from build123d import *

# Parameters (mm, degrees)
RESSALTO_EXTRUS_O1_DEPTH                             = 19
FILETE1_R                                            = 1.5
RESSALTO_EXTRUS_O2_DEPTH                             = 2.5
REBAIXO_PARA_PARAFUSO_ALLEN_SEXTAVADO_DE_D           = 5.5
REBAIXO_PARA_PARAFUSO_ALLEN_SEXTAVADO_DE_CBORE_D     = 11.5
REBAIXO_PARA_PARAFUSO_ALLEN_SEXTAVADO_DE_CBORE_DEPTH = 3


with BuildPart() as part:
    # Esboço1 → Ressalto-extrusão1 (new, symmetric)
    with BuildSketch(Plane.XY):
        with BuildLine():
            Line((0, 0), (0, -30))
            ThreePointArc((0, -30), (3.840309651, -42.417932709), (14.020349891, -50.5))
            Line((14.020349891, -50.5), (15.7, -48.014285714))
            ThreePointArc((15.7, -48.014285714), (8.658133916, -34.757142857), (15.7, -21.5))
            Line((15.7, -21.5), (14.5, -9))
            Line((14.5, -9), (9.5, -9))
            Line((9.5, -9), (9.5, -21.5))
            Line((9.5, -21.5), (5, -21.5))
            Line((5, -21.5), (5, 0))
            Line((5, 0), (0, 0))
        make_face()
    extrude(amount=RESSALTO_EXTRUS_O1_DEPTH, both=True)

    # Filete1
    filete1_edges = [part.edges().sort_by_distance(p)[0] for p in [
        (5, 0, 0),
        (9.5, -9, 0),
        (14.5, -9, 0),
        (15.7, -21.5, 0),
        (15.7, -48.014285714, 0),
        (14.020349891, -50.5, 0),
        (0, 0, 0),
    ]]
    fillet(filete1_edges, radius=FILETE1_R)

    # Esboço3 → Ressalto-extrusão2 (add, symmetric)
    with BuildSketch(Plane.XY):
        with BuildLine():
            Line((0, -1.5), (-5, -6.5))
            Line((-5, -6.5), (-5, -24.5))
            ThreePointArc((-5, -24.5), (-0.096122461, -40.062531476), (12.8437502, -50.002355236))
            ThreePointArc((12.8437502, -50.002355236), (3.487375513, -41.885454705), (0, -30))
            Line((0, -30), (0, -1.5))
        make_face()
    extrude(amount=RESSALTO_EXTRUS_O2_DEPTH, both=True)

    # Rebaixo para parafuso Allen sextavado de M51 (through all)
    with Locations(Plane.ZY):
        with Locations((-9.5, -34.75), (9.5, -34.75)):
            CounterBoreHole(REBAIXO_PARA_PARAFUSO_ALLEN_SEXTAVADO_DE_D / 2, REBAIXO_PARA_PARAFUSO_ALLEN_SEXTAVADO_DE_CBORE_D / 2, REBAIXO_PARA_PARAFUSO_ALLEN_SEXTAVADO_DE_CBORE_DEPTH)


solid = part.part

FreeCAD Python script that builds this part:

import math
import FreeCAD as App
import Part
import Sketcher
Q = App.Units.Quantity


def edges_at(feature, points):
    """Names of the edges that pass closest to the given points."""
    edges = feature.Shape.Edges
    near = lambda p: min(range(len(edges)), key=lambda i: edges[i].distToShape(Part.Vertex(*p))[0])
    return sorted({f"Edge{near(p) + 1}" for p in points})

doc = App.newDocument("Part")
body = doc.addObject("PartDesign::Body", "Body")

# Sketch on XY plane
sketch1 = doc.addObject("Sketcher::SketchObject", "Sketch")
body.addObject(sketch1)
sketch1.AttachmentSupport = (doc.XY_Plane, [""])
sketch1.MapMode = "FlatFace"
sketch1.addGeometry(Part.LineSegment(App.Vector(0, 0, 0), App.Vector(0, -30, 0)), False)
sketch1.addGeometry(Part.ArcOfCircle(Part.Circle(App.Vector(22, -30, 0), App.Vector(0, 0, 1), 22), math.radians(180), math.radians(249)), False)
sketch1.addGeometry(Part.LineSegment(App.Vector(14, -50.5, 0), App.Vector(15.7, -48, 0)), False)
sketch1.addGeometry(Part.ArcOfCircle(Part.Circle(App.Vector(24.7, -34.8, 0), App.Vector(0, 0, 1), 16), math.radians(124), math.radians(236)), False)
sketch1.addGeometry(Part.LineSegment(App.Vector(15.7, -21.5, 0), App.Vector(14.5, -9, 0)), False)
sketch1.addGeometry(Part.LineSegment(App.Vector(14.5, -9, 0), App.Vector(9.5, -9, 0)), False)
sketch1.addGeometry(Part.LineSegment(App.Vector(9.5, -9, 0), App.Vector(9.5, -21.5, 0)), False)
sketch1.addGeometry(Part.LineSegment(App.Vector(9.5, -21.5, 0), App.Vector(5, -21.5, 0)), False)
sketch1.addGeometry(Part.LineSegment(App.Vector(5, -21.5, 0), App.Vector(5, 0, 0)), False)
sketch1.addGeometry(Part.LineSegment(App.Vector(5, 0, 0), App.Vector(0, 0, 0)), False)
sketch1.addConstraint(Sketcher.Constraint("Tangent", 0, 2, 1, 1))
sketch1.addConstraint(Sketcher.Constraint("Coincident", 1, 2, 2, 1))
sketch1.addConstraint(Sketcher.Constraint("Coincident", 2, 2, 3, 2))
sketch1.addConstraint(Sketcher.Constraint("Coincident", 3, 1, 4, 1))
sketch1.addConstraint(Sketcher.Constraint("Coincident", 4, 2, 5, 1))
sketch1.addConstraint(Sketcher.Constraint("Coincident", 5, 2, 6, 1))
sketch1.addConstraint(Sketcher.Constraint("Coincident", 6, 2, 7, 1))
sketch1.addConstraint(Sketcher.Constraint("Coincident", 7, 2, 8, 1))
sketch1.addConstraint(Sketcher.Constraint("Coincident", 8, 2, 9, 1))
sketch1.addConstraint(Sketcher.Constraint("Coincident", 9, 2, 0, 1))
sketch1.addConstraint(Sketcher.Constraint("Vertical", 0))
sketch1.addConstraint(Sketcher.Constraint("Horizontal", 5))
sketch1.addConstraint(Sketcher.Constraint("Vertical", 6))
sketch1.addConstraint(Sketcher.Constraint("Horizontal", 7))
sketch1.addConstraint(Sketcher.Constraint("Vertical", 8))
sketch1.addConstraint(Sketcher.Constraint("Horizontal", 9))
sketch1.addConstraint(Sketcher.Constraint("Coincident", 9, 2, -1, 1))
sketch1.addConstraint(Sketcher.Constraint("Horizontal", 3, 1, 6, 2))
sketch1.addConstraint(Sketcher.Constraint("Vertical", 2, 2, 3, 1))
sketch1.addConstraint(Sketcher.Constraint("Equal", 5, 9))
sketch1.addConstraint(Sketcher.Constraint("Radius", 3, 16.0))
sketch1.addConstraint(Sketcher.Constraint("DistanceX", 5, 2, 5, 1, 5.0))
sketch1.addConstraint(Sketcher.Constraint("DistanceY", 0, 2, 0, 1, 30.0))
sketch1.addConstraint(Sketcher.Constraint("Distance", 2, 3.0))
sketch1.addConstraint(Sketcher.Constraint("DistanceX", 7, 2, 7, 1, 4.5))
sketch1.addConstraint(Sketcher.Constraint("DistanceY", 6, 2, 6, 1, 12.5))
sketch1.addConstraint(Sketcher.Constraint("DistanceY", 8, 1, 8, 2, 21.5))
sketch1.addConstraint(Sketcher.Constraint("DistanceY", 1, 2, 3, 1, 29.0))
sketch1.addConstraint(Sketcher.Constraint("DistanceX", -1, 1, 2, 2, 15.7))
sketch1.addConstraint(Sketcher.Constraint("Radius", 1, 21.997319))
pad1 = doc.addObject("PartDesign::Pad", "Pad")
body.addObject(pad1)
pad1.Profile = sketch1
pad1.Length = 38
pad1.Midplane = True
doc.recompute()

fillet = doc.addObject("PartDesign::Fillet", "Fillet")
body.addObject(fillet)
fillet.Base = (pad1, edges_at(pad1, [
    (5, 0, 0),
    (9.5, -9, 0),
    (14.5, -9, 0),
    (15.7, -21.5, 0),
    (15.7, -48.014, 0),
    (14.02, -50.5, 0),
    (0, 0, 0),
]))
fillet.Radius = 1.5

# Sketch on XY plane
sketch2 = doc.addObject("Sketcher::SketchObject", "Sketch001")
body.addObject(sketch2)
sketch2.AttachmentSupport = (doc.XY_Plane, [""])
sketch2.MapMode = "FlatFace"
sketch2.addGeometry(Part.LineSegment(App.Vector(0, -2, 0), App.Vector(-5, -6, 0)), False)
sketch2.addGeometry(Part.LineSegment(App.Vector(-5, -6, 0), App.Vector(-5, -24, 0)), False)
sketch2.addGeometry(Part.ArcOfCircle(Part.Circle(App.Vector(22, -24, 0), App.Vector(0, 0, 1), 27), math.radians(180), math.radians(250)), False)
sketch2.addGeometry(Part.ArcOfCircle(Part.Circle(App.Vector(22, -30, 0), App.Vector(0, 0, 1), 22), math.radians(-180), math.radians(-115)), False)
sketch2.addGeometry(Part.LineSegment(App.Vector(0, -30, 0), App.Vector(0, -2, 0)), False)
sketch2.addConstraint(Sketcher.Constraint("Coincident", 0, 2, 1, 1))
sketch2.addConstraint(Sketcher.Constraint("Tangent", 1, 2, 2, 1))
sketch2.addConstraint(Sketcher.Constraint("Coincident", 2, 2, 3, 2))
sketch2.addConstraint(Sketcher.Constraint("Tangent", 3, 1, 4, 1))
sketch2.addConstraint(Sketcher.Constraint("Coincident", 4, 2, 0, 1))
sketch2.addConstraint(Sketcher.Constraint("Vertical", 1))
sketch2.addConstraint(Sketcher.Constraint("Vertical", 4))
sketch2.addConstraint(Sketcher.Constraint("PointOnObject", 3, 1, -2))
sketch2.addConstraint(Sketcher.Constraint("DistanceY", 1, 2, 1, 1, 18.0))
sketch2.addConstraint(Sketcher.Constraint("Angle", 0, Q("-135 deg")))
sketch2.addConstraint(Sketcher.Constraint("DistanceY", 4, 1, 4, 2, 28.5))
sketch2.addConstraint(Sketcher.Constraint("DistanceY", 3, 3, -1, 1, 30.0))
sketch2.addConstraint(Sketcher.Constraint("DistanceX", 0, 2, -1, 1, 5.0))
sketch2.addConstraint(Sketcher.Constraint("Radius", 3, 21.997319))
sketch2.addConstraint(Sketcher.Constraint("Radius", 2, 27.145906))
pad2 = doc.addObject("PartDesign::Pad", "Pad001")
body.addObject(pad2)
pad2.Profile = sketch2
pad2.Length = 5
pad2.Midplane = True

# Sketch on YZ plane
sketch3 = doc.addObject("Sketcher::SketchObject", "Sketch002")
body.addObject(sketch3)
sketch3.AttachmentSupport = (doc.YZ_Plane, [""])
sketch3.MapMode = "FlatFace"
sketch3.addGeometry(Part.Circle(App.Vector(-34.8, -9.5, 0), App.Vector(0, 0, 1), 2.8), False)
sketch3.addGeometry(Part.Circle(App.Vector(-34.8, 9.5, 0), App.Vector(0, 0, 1), 2.8), False)
sketch3.addConstraint(Sketcher.Constraint("Equal", 0, 1))
sketch3.addConstraint(Sketcher.Constraint("Symmetric", 0, 3, 1, 3, -1))
sketch3.addConstraint(Sketcher.Constraint("Diameter", 0, 5.5))
sketch3.addConstraint(Sketcher.Constraint("DistanceY", 0, 3, 1, 3, 19.0))
sketch3.addConstraint(Sketcher.Constraint("DistanceX", 0, 3, -1, 1, 34.75))
doc.recompute()
hole = doc.addObject("PartDesign::Hole", "Hole")
body.addObject(hole)
hole.Profile = sketch3
hole.ThreadType = "None"
hole.Diameter = 5.5
hole.DepthType = "ThroughAll"
hole.HoleCutType = "Counterbore"
hole.HoleCutDiameter = 11.5
hole.HoleCutDepth = 3
hole.Reversed = True

doc.recompute()
